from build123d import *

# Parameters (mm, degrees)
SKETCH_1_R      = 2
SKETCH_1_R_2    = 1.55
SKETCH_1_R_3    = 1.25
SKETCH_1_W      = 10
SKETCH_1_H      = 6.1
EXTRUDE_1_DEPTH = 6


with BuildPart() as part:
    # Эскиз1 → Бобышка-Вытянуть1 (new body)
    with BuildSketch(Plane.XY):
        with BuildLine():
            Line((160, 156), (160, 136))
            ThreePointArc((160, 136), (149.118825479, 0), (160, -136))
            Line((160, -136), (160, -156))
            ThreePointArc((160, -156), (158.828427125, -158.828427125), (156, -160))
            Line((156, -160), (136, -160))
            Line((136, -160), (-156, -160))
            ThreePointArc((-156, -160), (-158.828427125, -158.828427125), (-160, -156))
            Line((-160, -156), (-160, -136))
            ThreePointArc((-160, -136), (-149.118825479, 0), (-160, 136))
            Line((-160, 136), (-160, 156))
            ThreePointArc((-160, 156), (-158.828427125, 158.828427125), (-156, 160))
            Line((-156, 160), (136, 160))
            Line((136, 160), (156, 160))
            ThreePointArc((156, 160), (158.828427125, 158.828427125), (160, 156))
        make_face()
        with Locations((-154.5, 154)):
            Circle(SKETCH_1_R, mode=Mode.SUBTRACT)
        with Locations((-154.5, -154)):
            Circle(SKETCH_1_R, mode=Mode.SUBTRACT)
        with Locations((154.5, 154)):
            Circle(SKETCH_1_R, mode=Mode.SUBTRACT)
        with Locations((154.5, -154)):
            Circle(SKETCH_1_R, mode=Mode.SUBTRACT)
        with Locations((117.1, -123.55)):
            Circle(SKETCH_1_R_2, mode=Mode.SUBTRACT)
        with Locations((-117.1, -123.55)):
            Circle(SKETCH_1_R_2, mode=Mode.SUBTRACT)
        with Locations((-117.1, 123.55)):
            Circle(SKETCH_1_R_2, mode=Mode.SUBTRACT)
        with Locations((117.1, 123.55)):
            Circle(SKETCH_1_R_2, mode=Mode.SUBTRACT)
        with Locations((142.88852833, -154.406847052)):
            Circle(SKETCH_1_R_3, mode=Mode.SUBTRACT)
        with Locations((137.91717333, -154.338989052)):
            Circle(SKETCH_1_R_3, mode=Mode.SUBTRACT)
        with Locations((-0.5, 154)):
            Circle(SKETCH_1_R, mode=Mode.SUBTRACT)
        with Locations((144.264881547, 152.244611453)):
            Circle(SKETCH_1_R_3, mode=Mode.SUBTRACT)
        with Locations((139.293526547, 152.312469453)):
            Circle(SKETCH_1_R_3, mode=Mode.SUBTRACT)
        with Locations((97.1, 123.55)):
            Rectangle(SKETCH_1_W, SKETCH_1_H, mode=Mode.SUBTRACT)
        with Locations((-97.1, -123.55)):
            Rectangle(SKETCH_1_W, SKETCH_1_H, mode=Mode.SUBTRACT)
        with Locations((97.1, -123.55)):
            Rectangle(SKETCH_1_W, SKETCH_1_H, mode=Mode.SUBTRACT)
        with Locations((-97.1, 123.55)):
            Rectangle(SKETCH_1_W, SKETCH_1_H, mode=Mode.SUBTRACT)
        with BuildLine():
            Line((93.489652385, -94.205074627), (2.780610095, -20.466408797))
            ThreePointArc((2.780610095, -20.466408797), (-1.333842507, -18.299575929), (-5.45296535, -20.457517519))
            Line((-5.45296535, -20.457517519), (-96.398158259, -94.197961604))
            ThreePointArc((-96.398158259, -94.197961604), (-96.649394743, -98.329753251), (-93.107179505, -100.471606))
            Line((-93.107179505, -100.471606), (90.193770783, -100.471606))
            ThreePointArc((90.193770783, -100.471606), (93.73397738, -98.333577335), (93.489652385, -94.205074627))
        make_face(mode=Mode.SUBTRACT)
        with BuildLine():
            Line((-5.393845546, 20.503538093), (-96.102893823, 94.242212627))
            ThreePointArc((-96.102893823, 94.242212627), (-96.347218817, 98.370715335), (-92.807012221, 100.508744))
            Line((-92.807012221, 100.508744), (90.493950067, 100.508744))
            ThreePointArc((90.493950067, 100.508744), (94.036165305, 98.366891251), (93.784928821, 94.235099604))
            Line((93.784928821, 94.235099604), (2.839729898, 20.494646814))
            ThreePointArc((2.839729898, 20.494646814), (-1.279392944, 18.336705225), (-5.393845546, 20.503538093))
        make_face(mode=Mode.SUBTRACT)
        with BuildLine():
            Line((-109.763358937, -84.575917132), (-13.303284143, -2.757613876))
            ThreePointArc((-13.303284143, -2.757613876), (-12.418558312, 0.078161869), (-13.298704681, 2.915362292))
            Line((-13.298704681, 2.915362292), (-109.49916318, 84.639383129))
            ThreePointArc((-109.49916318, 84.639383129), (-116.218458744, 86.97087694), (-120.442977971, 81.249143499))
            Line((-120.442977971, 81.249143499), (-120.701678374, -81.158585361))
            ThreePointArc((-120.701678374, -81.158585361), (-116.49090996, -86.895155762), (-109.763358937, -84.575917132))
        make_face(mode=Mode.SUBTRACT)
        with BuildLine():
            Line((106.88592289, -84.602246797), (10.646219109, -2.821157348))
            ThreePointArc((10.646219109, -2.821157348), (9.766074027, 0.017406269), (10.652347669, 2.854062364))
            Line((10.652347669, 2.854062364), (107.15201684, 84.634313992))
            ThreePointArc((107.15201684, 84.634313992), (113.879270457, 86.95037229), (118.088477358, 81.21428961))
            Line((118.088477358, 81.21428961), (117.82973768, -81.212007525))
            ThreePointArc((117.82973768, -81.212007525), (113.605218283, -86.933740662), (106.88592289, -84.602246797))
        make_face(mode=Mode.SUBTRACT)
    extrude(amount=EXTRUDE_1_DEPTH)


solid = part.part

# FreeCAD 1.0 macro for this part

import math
import FreeCAD as App
import Part
import Sketcher


def add_polygon(sketch, points):
    """Adds a closed chain of lines whose ends are joined by coincident constraints."""
    first, n = sketch.GeometryCount, len(points)
    for a, b in zip(points, points[1:] + points[:1]):
        sketch.addGeometry(Part.LineSegment(App.Vector(*a, 0), App.Vector(*b, 0)), False)
    for i in range(n):
        sketch.addConstraint(Sketcher.Constraint("Coincident", first + i, 2, first + (i + 1) % n, 1))

doc = App.newDocument("Part")
body = doc.addObject("PartDesign::Body", "Body")

# Sketch on XY plane
sketch1 = body.newObject("Sketcher::SketchObject", "Sketch")
sketch1.AttachmentSupport = (doc.getObject("XY_Plane"), [""])
sketch1.MapMode = "FlatFace"
sketch1.addGeometry(Part.LineSegment(App.Vector(160, 136, 0), App.Vector(160, 156, 0)), False)  # 0
sketch1.addGeometry(Part.ArcOfCircle(Part.Circle(App.Vector(156, 156, 0), App.Vector(0, 0, 1), 4), math.radians(0), math.radians(90)), False)  # 1
sketch1.addGeometry(Part.LineSegment(App.Vector(156, 160, 0), App.Vector(-156, 160, 0)), False)  # 2
sketch1.addGeometry(Part.ArcOfCircle(Part.Circle(App.Vector(-156, 156, 0), App.Vector(0, 0, 1), 4), math.radians(90), math.radians(180)), False)  # 3
sketch1.addGeometry(Part.LineSegment(App.Vector(-160, 156, 0), App.Vector(-160, 136, 0)), False)  # 4
sketch1.addGeometry(Part.ArcOfCircle(Part.Circle(App.Vector(-1004.467663, 0, 0), App.Vector(0, 0, 1), 855.348838), math.radians(-9.148826), math.radians(9.148826)), False)  # 5
sketch1.addGeometry(Part.LineSegment(App.Vector(-160, -136, 0), App.Vector(-160, -156, 0)), False)  # 6
sketch1.addGeometry(Part.ArcOfCircle(Part.Circle(App.Vector(-156, -156, 0), App.Vector(0, 0, 1), 4), math.radians(180), math.radians(270)), False)  # 7
sketch1.addGeometry(Part.LineSegment(App.Vector(-156, -160, 0), App.Vector(156, -160, 0)), False)  # 8
sketch1.addGeometry(Part.ArcOfCircle(Part.Circle(App.Vector(156, -156, 0), App.Vector(0, 0, 1), 4), math.radians(-90), math.radians(0)), False)  # 9
sketch1.addGeometry(Part.LineSegment(App.Vector(160, -156, 0), App.Vector(160, -136, 0)), False)  # 10
sketch1.addGeometry(Part.ArcOfCircle(Part.Circle(App.Vector(1004.467663, 0, 0), App.Vector(0, 0, 1), 855.348838), math.radians(170.851174), math.radians(189.148826)), False)  # 11
sketch1.addGeometry(Part.Circle(App.Vector(154.5, -154, 0), App.Vector(0, 0, 1), 2), False)  # 12
sketch1.addGeometry(Part.Circle(App.Vector(142.888528, -154.406847, 0), App.Vector(0, 0, 1), 1.25), False)  # 13
sketch1.addGeometry(Part.Circle(App.Vector(137.917173, -154.338989, 0), App.Vector(0, 0, 1), 1.25), False)  # 14
sketch1.addGeometry(Part.Circle(App.Vector(117.1, -123.55, 0), App.Vector(0, 0, 1), 1.55), False)  # 15
add_polygon(sketch1, [(92.1, -126.6), (92.1, -120.5), (102.1, -120.5), (102.1, -126.6)])  # lines 16-19
add_polygon(sketch1, [(-102.1, -126.6), (-102.1, -120.5), (-92.1, -120.5), (-92.1, -126.6)])  # lines 20-23
sketch1.addGeometry(Part.Circle(App.Vector(-117.1, -123.55, 0), App.Vector(0, 0, 1), 1.55), False)  # 24
sketch1.addGeometry(Part.Circle(App.Vector(-154.5, -154, 0), App.Vector(0, 0, 1), 2), False)  # 25
sketch1.addGeometry(Part.ArcOfCircle(Part.Circle(App.Vector(90.193771, -96.471606, 0), App.Vector(0, 0, 1), 4), math.radians(-90), math.radians(34.515756)), False)  # 26
sketch1.addGeometry(Part.LineSegment(App.Vector(90.193771, -100.471606, 0), App.Vector(-93.10718, -100.471606, 0)), False)  # 27
sketch1.addGeometry(Part.ArcOfCircle(Part.Circle(App.Vector(-93.10718, -96.471606, 0), App.Vector(0, 0, 1), 4), math.radians(145.360499), math.radians(270)), False)  # 28
sketch1.addGeometry(Part.LineSegment(App.Vector(-96.398158, -94.197962, 0), App.Vector(-5.452965, -20.457518, 0)), False)  # 29
sketch1.addGeometry(Part.ArcOfCircle(Part.Circle(App.Vector(-1.339242, -23.299573, 0), App.Vector(0, 0, 1), 5), math.radians(34.515756), math.radians(145.360499)), False)  # 30
sketch1.addGeometry(Part.LineSegment(App.Vector(2.78061, -20.466409, 0), App.Vector(93.489652, -94.205075, 0)), False)  # 31
sketch1.addGeometry(Part.LineSegment(App.Vector(106.885923, -84.602247, 0), App.Vector(10.646219, -2.821157, 0)), False)  # 32
sketch1.addGeometry(Part.ArcOfCircle(Part.Circle(App.Vector(14.766071, 0.012007, 0), App.Vector(0, 0, 1), 5), math.radians(145.360499), math.radians(214.515756)), False)  # 33
sketch1.addGeometry(Part.LineSegment(App.Vector(10.652348, 2.854062, 0), App.Vector(107.152017, 84.634314, 0)), False)  # 34
sketch1.addGeometry(Part.ArcOfCircle(Part.Circle(App.Vector(112.088485, 81.223847, 0), App.Vector(0, 0, 1), 6), math.radians(-0.09127), math.radians(145.360499)), False)  # 35
sketch1.addGeometry(Part.LineSegment(App.Vector(118.088477, 81.21429, 0), App.Vector(117.829738, -81.212008, 0)), False)  # 36
sketch1.addGeometry(Part.ArcOfCircle(Part.Circle(App.Vector(111.829745, -81.20245, 0), App.Vector(0, 0, 1), 6), math.radians(-145.484244), math.radians(-0.09127)), False)  # 37
sketch1.addGeometry(Part.Circle(App.Vector(154.5, 154, 0), App.Vector(0, 0, 1), 2), False)  # 38
sketch1.addGeometry(Part.Circle(App.Vector(144.264882, 152.244611, 0), App.Vector(0, 0, 1), 1.25), False)  # 39
sketch1.addGeometry(Part.Circle(App.Vector(139.293527, 152.312469, 0), App.Vector(0, 0, 1), 1.25), False)  # 40
sketch1.addGeometry(Part.Circle(App.Vector(117.1, 123.55, 0), App.Vector(0, 0, 1), 1.55), False)  # 41
add_polygon(sketch1, [(92.1, 120.5), (92.1, 126.6), (102.1, 126.6), (102.1, 120.5)])  # lines 42-45
sketch1.addGeometry(Part.ArcOfCircle(Part.Circle(App.Vector(-114.701686, -81.168143, 0), App.Vector(0, 0, 1), 6), math.radians(179.908733), math.radians(325.391741)), False)  # 46
sketch1.addGeometry(Part.LineSegment(App.Vector(-120.701678, -81.158585, 0), App.Vector(-120.442978, 81.249143, 0)), False)  # 47
sketch1.addGeometry(Part.ArcOfCircle(Part.Circle(App.Vector(-114.442986, 81.239586, 0), App.Vector(0, 0, 1), 6), math.radians(34.515756), math.radians(179.908733)), False)  # 48
sketch1.addGeometry(Part.LineSegment(App.Vector(-109.499163, 84.639383, 0), App.Vector(-13.298705, 2.915362, 0)), False)  # 49
sketch1.addGeometry(Part.ArcOfCircle(Part.Circle(App.Vector(-17.418557, 0.082198, 0), App.Vector(0, 0, 1), 5), math.radians(-34.608259), math.radians(34.515756)), False)  # 50
sketch1.addGeometry(Part.LineSegment(App.Vector(-13.303284, -2.757614, 0), App.Vector(-109.763359, -84.575917, 0)), False)  # 51
sketch1.addGeometry(Part.LineSegment(App.Vector(-5.393846, 20.503538, 0), App.Vector(-96.102894, 94.242213, 0)), False)  # 52
sketch1.addGeometry(Part.ArcOfCircle(Part.Circle(App.Vector(-92.807012, 96.508744, 0), App.Vector(0, 0, 1), 4), math.radians(90), math.radians(214.515756)), False)  # 53
sketch1.addGeometry(Part.LineSegment(App.Vector(-92.807012, 100.508744, 0), App.Vector(90.49395, 100.508744, 0)), False)  # 54
sketch1.addGeometry(Part.ArcOfCircle(Part.Circle(App.Vector(90.49395, 96.508744, 0), App.Vector(0, 0, 1), 4), math.radians(-34.639501), math.radians(90)), False)  # 55
sketch1.addGeometry(Part.LineSegment(App.Vector(93.784929, 94.2351, 0), App.Vector(2.83973, 20.494647, 0)), False)  # 56
sketch1.addGeometry(Part.ArcOfCircle(Part.Circle(App.Vector(-1.273994, 23.336702, 0), App.Vector(0, 0, 1), 5), math.radians(-145.484244), math.radians(-34.639501)), False)  # 57
sketch1.addGeometry(Part.Circle(App.Vector(-0.5, 154, 0), App.Vector(0, 0, 1), 2), False)  # 58
add_polygon(sketch1, [(-102.1, 120.5), (-102.1, 126.6), (-92.1, 126.6), (-92.1, 120.5)])  # lines 59-62
sketch1.addGeometry(Part.Circle(App.Vector(-117.1, 123.55, 0), App.Vector(0, 0, 1), 1.55), False)  # 63
sketch1.addGeometry(Part.Circle(App.Vector(-154.5, 154, 0), App.Vector(0, 0, 1), 2), False)  # 64
sketch1.addConstraint([
    Sketcher.Constraint("Coincident", 0, 2, 1, 1),
    Sketcher.Constraint("Coincident", 1, 2, 2, 1),
    Sketcher.Constraint("Coincident", 2, 2, 3, 1),
    Sketcher.Constraint("Coincident", 3, 2, 4, 1),
    Sketcher.Constraint("Coincident", 4, 2, 5, 2),
    Sketcher.Constraint("Coincident", 5, 1, 6, 1),
    Sketcher.Constraint("Coincident", 6, 2, 7, 1),
    Sketcher.Constraint("Coincident", 7, 2, 8, 1),
    Sketcher.Constraint("Coincident", 8, 2, 9, 1),
    Sketcher.Constraint("Coincident", 9, 2, 10, 1),
    Sketcher.Constraint("Coincident", 10, 2, 11, 2),
    Sketcher.Constraint("Coincident", 11, 1, 0, 1),
    Sketcher.Constraint("Coincident", 26, 1, 27, 1),
    Sketcher.Constraint("Coincident", 27, 2, 28, 2),
    Sketcher.Constraint("Coincident", 28, 1, 29, 1),
    Sketcher.Constraint("Coincident", 29, 2, 30, 2),
    Sketcher.Constraint("Coincident", 30, 1, 31, 1),
    Sketcher.Constraint("Coincident", 31, 2, 26, 2),
    Sketcher.Constraint("Coincident", 32, 2, 33, 2),
    Sketcher.Constraint("Coincident", 33, 1, 34, 1),
    Sketcher.Constraint("Coincident", 34, 2, 35, 2),
    Sketcher.Constraint("Coincident", 35, 1, 36, 1),
    Sketcher.Constraint("Coincident", 36, 2, 37, 2),
    Sketcher.Constraint("Coincident", 37, 1, 32, 1),
    Sketcher.Constraint("Coincident", 46, 1, 47, 1),
    Sketcher.Constraint("Coincident", 47, 2, 48, 2),
    Sketcher.Constraint("Coincident", 48, 1, 49, 1),
    Sketcher.Constraint("Coincident", 49, 2, 50, 2),
    Sketcher.Constraint("Coincident", 50, 1, 51, 1),
    Sketcher.Constraint("Coincident", 51, 2, 46, 2),
    Sketcher.Constraint("Coincident", 52, 2, 53, 2),
    Sketcher.Constraint("Coincident", 53, 1, 54, 1),
    Sketcher.Constraint("Coincident", 54, 2, 55, 2),
    Sketcher.Constraint("Coincident", 55, 1, 56, 1),
    Sketcher.Constraint("Coincident", 56, 2, 57, 2),
    Sketcher.Constraint("Coincident", 57, 1, 52, 1),
    Sketcher.Constraint("Vertical", 0),
    Sketcher.Constraint("Horizontal", 2),
    Sketcher.Constraint("Vertical", 4),
    Sketcher.Constraint("Vertical", 6),
    Sketcher.Constraint("Horizontal", 8),
    Sketcher.Constraint("Vertical", 10),
    Sketcher.Constraint("Vertical", 16),
    Sketcher.Constraint("Horizontal", 17),
    Sketcher.Constraint("Vertical", 18),
    Sketcher.Constraint("Horizontal", 19),
    Sketcher.Constraint("Vertical", 20),
    Sketcher.Constraint("Horizontal", 21),
    Sketcher.Constraint("Vertical", 22),
    Sketcher.Constraint("Horizontal", 23),
    Sketcher.Constraint("Horizontal", 27),
    Sketcher.Constraint("Vertical", 42),
    Sketcher.Constraint("Horizontal", 43),
    Sketcher.Constraint("Vertical", 44),
    Sketcher.Constraint("Horizontal", 45),
    Sketcher.Constraint("Horizontal", 54),
    Sketcher.Constraint("Vertical", 59),
    Sketcher.Constraint("Horizontal", 60),
    Sketcher.Constraint("Vertical", 61),
    Sketcher.Constraint("Horizontal", 62),
    Sketcher.Constraint("PointOnObject", 5, 3, -1),
    Sketcher.Constraint("PointOnObject", 11, 3, -1),
    Sketcher.Constraint("Diameter", 12, 4.0),
    Sketcher.Constraint("Diameter", 25, 4.0),
    Sketcher.Constraint("Diameter", 38, 4.0),
    Sketcher.Constraint("Diameter", 58, 4.0),
    Sketcher.Constraint("Diameter", 64, 4.0),
    Sketcher.Constraint("Radius", 1, 4.0),
    Sketcher.Constraint("Radius", 3, 4.0),
    Sketcher.Constraint("Radius", 7, 4.0),
    Sketcher.Constraint("Radius", 9, 4.0),
    Sketcher.Constraint("Radius", 26, 4.0),
    Sketcher.Constraint("Radius", 28, 4.0),
    Sketcher.Constraint("Radius", 30, 5.0),
    Sketcher.Constraint("Radius", 33, 5.0),
    Sketcher.Constraint("Radius", 35, 6.0),
    Sketcher.Constraint("Radius", 37, 6.0),
    Sketcher.Constraint("Radius", 46, 6.0),
    Sketcher.Constraint("Radius", 48, 6.0),
    Sketcher.Constraint("Radius", 50, 5.0),
    Sketcher.Constraint("Radius", 53, 4.0),
    Sketcher.Constraint("Radius", 55, 4.0),
    Sketcher.Constraint("Radius", 57, 5.0),
    Sketcher.Constraint("Diameter", 13, 2.5),
    Sketcher.Constraint("Diameter", 14, 2.5),
    Sketcher.Constraint("Diameter", 15, 3.1),
    Sketcher.Constraint("Diameter", 24, 3.1),
    Sketcher.Constraint("Diameter", 39, 2.5),
    Sketcher.Constraint("Diameter", 40, 2.5),
    Sketcher.Constraint("Diameter", 41, 3.1),
    Sketcher.Constraint("Diameter", 63, 3.1),
    Sketcher.Constraint("DistanceX", 2, 2, 2, 1, 312.0),
    Sketcher.Constraint("DistanceX", 8, 1, 8, 2, 312.0),
    Sketcher.Constraint("DistanceX", 17, 1, 17, 2, 10.0),
    Sketcher.Constraint("DistanceX", 21, 1, 21, 2, 10.0),
    Sketcher.Constraint("DistanceX", 43, 1, 43, 2, 10.0),
    Sketcher.Constraint("DistanceX", 60, 1, 60, 2, 10.0),
    Sketcher.Constraint("DistanceY", 0, 1, 0, 2, 20.0),
    Sketcher.Constraint("DistanceY", 4, 2, 4, 1, 20.0),
    Sketcher.Constraint("DistanceY", 6, 2, 6, 1, 20.0),
    Sketcher.Constraint("DistanceY", 10, 1, 10, 2, 20.0),
    Sketcher.Constraint("DistanceY", 16, 1, 16, 2, 6.1),
    Sketcher.Constraint("DistanceY", 20, 1, 20, 2, 6.1),
    Sketcher.Constraint("DistanceY", 42, 1, 42, 2, 6.1),
    Sketcher.Constraint("DistanceY", 59, 1, 59, 2, 6.1),
    Sketcher.Constraint("DistanceX", -1, 1, 1, 3, 156.0),
    Sketcher.Constraint("DistanceY", -1, 1, 1, 3, 156.0),
    Sketcher.Constraint("DistanceX", 3, 3, -1, 1, 156.0),
    Sketcher.Constraint("DistanceX", 7, 3, -1, 1, 156.0),
    Sketcher.Constraint("DistanceY", 7, 3, -1, 1, 156.0),
    Sketcher.Constraint("DistanceX", -1, 1, 9, 3, 156.0),
    Sketcher.Constraint("DistanceY", 12, 3, -1, 1, 154.0),
    Sketcher.Constraint("DistanceY", 25, 3, -1, 1, 154.0),
    Sketcher.Constraint("DistanceY", -1, 1, 38, 3, 154.0),
    Sketcher.Constraint("DistanceY", -1, 1, 58, 3, 154.0),
    Sketcher.Constraint("DistanceY", -1, 1, 64, 3, 154.0),
    Sketcher.Constraint("DistanceY", -1, 1, 0, 2, 156.0),
    Sketcher.Constraint("DistanceX", -1, 1, 1, 2, 156.0),
    Sketcher.Constraint("DistanceY", -1, 1, 3, 2, 156.0),
    Sketcher.Constraint("DistanceX", 7, 2, -1, 1, 156.0),
    Sketcher.Constraint("DistanceX", -1, 1, 12, 3, 154.5),
    Sketcher.Constraint("DistanceX", -1, 1, 15, 3, 117.1),
    Sketcher.Constraint("DistanceX", 24, 3, -1, 1, 117.1),
    Sketcher.Constraint("DistanceX", 25, 3, -1, 1, 154.5),
    Sketcher.Constraint("DistanceX", -1, 1, 38, 3, 154.5),
    Sketcher.Constraint("DistanceX", -1, 1, 41, 3, 117.1),
    Sketcher.Constraint("DistanceX", 58, 3, -1, 1, 0.5),
    Sketcher.Constraint("DistanceX", 63, 3, -1, 1, 117.1),
    Sketcher.Constraint("DistanceX", 64, 3, -1, 1, 154.5),
    Sketcher.Constraint("DistanceX", -1, 1, 16, 2, 92.1),
    Sketcher.Constraint("DistanceY", 16, 2, -1, 1, 120.5),
    Sketcher.Constraint("DistanceX", 20, 2, -1, 1, 102.1),
    Sketcher.Constraint("DistanceY", 20, 2, -1, 1, 120.5),
    Sketcher.Constraint("DistanceX", -1, 1, 42, 2, 92.1),
    Sketcher.Constraint("DistanceY", -1, 1, 42, 2, 126.6),
    Sketcher.Constraint("DistanceX", 59, 2, -1, 1, 102.1),
    Sketcher.Constraint("DistanceY", -1, 1, 59, 2, 126.6),
    Sketcher.Constraint("DistanceY", 15, 3, -1, 1, 123.55),
    Sketcher.Constraint("DistanceY", 24, 3, -1, 1, 123.55),
    Sketcher.Constraint("DistanceY", -1, 1, 41, 3, 123.55),
    Sketcher.Constraint("DistanceY", -1, 1, 63, 3, 123.55),
    Sketcher.Constraint("Radius", 5, 855.348838),
    Sketcher.Constraint("Radius", 11, 855.348838),
    Sketcher.Constraint("DistanceX", 27, 2, 27, 1, 183.30095),
    Sketcher.Constraint("DistanceY", -1, 1, 50, 3, 0.082198),
    Sketcher.Constraint("DistanceY", -1, 1, 55, 1, 94.2351),
    Sketcher.Constraint("Distance", 31, 116.89962),
    Sketcher.Constraint("Distance", 32, 126.294209),
    Sketcher.Constraint("Distance", 34, 126.49188),
    Sketcher.Constraint("Distance", 49, 126.22735),
    Sketcher.Constraint("Distance", 52, 116.89963),
    Sketcher.Constraint("DistanceX", 54, 1, 54, 2, 183.300962),
    Sketcher.Constraint("DistanceX", -1, 1, 13, 3, 142.888528),
    Sketcher.Constraint("DistanceY", 14, 3, -1, 1, 154.338989),
    Sketcher.Constraint("DistanceX", -1, 1, 26, 3, 90.193771),
    Sketcher.Constraint("DistanceX", 28, 3, -1, 1, 93.10718),
    Sketcher.Constraint("DistanceX", 30, 3, -1, 1, 1.339242),
    Sketcher.Constraint("DistanceX", -1, 1, 33, 3, 14.766071),
    Sketcher.Constraint("DistanceY", 37, 3, -1, 1, 81.20245),
    Sketcher.Constraint("DistanceX", -1, 1, 39, 3, 144.264882),
    Sketcher.Constraint("DistanceY", -1, 1, 39, 3, 152.244611),
    Sketcher.Constraint("DistanceY", -1, 1, 40, 3, 152.312469),
    Sketcher.Constraint("DistanceX", -1, 1, 55, 3, 90.49395),
    Sketcher.Constraint("DistanceX", -1, 1, 26, 1, 90.193771),
    Sketcher.Constraint("DistanceX", 28, 1, -1, 1, 96.398158),
    Sketcher.Constraint("DistanceY", 28, 1, -1, 1, 94.197962),
    Sketcher.Constraint("DistanceX", -1, 1, 30, 1, 2.78061),
    Sketcher.Constraint("DistanceY", 30, 1, -1, 1, 20.466409),
    Sketcher.Constraint("DistanceX", -1, 1, 32, 2, 10.646219),
    Sketcher.Constraint("DistanceY", -1, 1, 35, 1, 81.21429),
    Sketcher.Constraint("DistanceX", 46, 1, -1, 1, 120.701678),
    Sketcher.Constraint("DistanceX", 51, 2, -1, 1, 109.763359),
    Sketcher.Constraint("DistanceX", -1, 1, 54, 2, 90.49395),
    Sketcher.Constraint("DistanceX", -1, 1, 55, 1, 93.784929),
    Sketcher.Constraint("DistanceX", -1, 1, 56, 2, 2.83973),
    Sketcher.Constraint("DistanceY", -1, 1, 57, 1, 20.503538),
    Sketcher.Constraint("Distance", 29, 117.084078),
    Sketcher.Constraint("Distance", 36, 162.426503),
    Sketcher.Constraint("Distance", 47, 162.407935),
    Sketcher.Constraint("Distance", 51, 126.486287),
    Sketcher.Constraint("Distance", 56, 117.084088),
    Sketcher.Constraint("DistanceY", 13, 3, -1, 1, 154.406847),
    Sketcher.Constraint("DistanceX", -1, 1, 14, 3, 137.917173),
    Sketcher.Constraint("DistanceY", -1, 1, 33, 3, 0.012007),
    Sketcher.Constraint("DistanceX", -1, 1, 35, 3, 112.088485),
    Sketcher.Constraint("DistanceY", -1, 1, 35, 3, 81.223847),
    Sketcher.Constraint("DistanceX", -1, 1, 37, 3, 111.829745),
    Sketcher.Constraint("DistanceX", -1, 1, 40, 3, 139.293527),
    Sketcher.Constraint("DistanceY", 46, 3, -1, 1, 81.168143),
    Sketcher.Constraint("DistanceX", 48, 3, -1, 1, 114.442986),
    Sketcher.Constraint("DistanceY", -1, 1, 48, 3, 81.239586),
    Sketcher.Constraint("DistanceX", 50, 3, -1, 1, 17.418557),
    Sketcher.Constraint("DistanceX", 53, 3, -1, 1, 92.807012),
    Sketcher.Constraint("DistanceX", 57, 3, -1, 1, 1.273994),
    Sketcher.Constraint("DistanceX", -1, 1, 33, 1, 10.652348),
    Sketcher.Constraint("DistanceY", 46, 1, -1, 1, 81.158585),
    Sketcher.Constraint("DistanceX", 48, 1, -1, 1, 109.499163),
])
pad1 = body.newObject("PartDesign::Pad", "Pad")
pad1.Profile = sketch1
pad1.Length = 6

doc.recompute()
